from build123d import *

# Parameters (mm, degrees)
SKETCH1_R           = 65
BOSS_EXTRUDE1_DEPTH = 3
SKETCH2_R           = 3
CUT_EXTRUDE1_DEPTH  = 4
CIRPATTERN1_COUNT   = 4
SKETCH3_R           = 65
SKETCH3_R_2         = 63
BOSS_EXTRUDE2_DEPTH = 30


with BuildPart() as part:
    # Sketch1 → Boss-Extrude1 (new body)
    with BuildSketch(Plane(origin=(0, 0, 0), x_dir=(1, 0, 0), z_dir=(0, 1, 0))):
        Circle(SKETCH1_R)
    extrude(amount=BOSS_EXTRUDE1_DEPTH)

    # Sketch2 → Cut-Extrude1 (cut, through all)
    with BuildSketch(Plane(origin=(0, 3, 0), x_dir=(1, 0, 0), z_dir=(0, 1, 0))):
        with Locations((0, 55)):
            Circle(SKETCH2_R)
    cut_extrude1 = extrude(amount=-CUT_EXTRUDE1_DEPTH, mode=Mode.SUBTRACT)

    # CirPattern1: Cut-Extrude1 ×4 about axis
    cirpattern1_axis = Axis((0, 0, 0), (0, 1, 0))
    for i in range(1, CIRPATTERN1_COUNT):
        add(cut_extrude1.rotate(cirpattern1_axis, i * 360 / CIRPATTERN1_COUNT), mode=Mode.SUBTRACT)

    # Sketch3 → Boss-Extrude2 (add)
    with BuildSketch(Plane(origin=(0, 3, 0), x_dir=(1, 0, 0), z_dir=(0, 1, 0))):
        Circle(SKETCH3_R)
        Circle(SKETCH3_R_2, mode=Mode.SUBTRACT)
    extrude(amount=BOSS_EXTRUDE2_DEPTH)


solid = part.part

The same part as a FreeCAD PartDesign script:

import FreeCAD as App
import Part
import Sketcher

V = App.Vector

doc = App.newDocument("Part")
params = doc.addObject("Spreadsheet::Sheet", "Params")
for row, (alias, value) in enumerate([
    ("sketch1_diameter", "130 mm"),
    ("pad1_length", "3 mm"),
    ("sketch2_diameter", "6 mm"),
    ("sketch3_diameter", "130 mm"),
    ("sketch3_diameter2", "126 mm"),
    ("pad2_length", "30 mm"),
], start=1):
    params.set(f"A{row}", alias)
    params.set(f"B{row}", "=" + value)
    params.setAlias(f"B{row}", alias)

body = doc.addObject("PartDesign::Body", "Body")

# Sketch on XZ plane
sketch1 = body.newObject("Sketcher::SketchObject", "Sketch")
sketch1.AttachmentSupport = (doc.getObject("XZ_Plane"), [""])
sketch1.MapMode = "FlatFace"
sketch1.addGeometry(Part.Circle(V(0, 0, 0), V(0, 0, 1), 65), False)
sketch1.addConstraint(Sketcher.Constraint("Coincident", 0, 3, -1, 1))
sketch1.addConstraint(Sketcher.Constraint("Diameter", 0, 130.0))
sketch1.setExpression("Constraints[1]", "Params.sketch1_diameter")
pad1 = body.newObject("PartDesign::Pad", "Pad")
pad1.Profile = sketch1
pad1.setExpression("Length", "Params.pad1_length")
pad1.Reversed = True

# Sketch on XZ plane
sketch2 = body.newObject("Sketcher::SketchObject", "Sketch001")
sketch2.AttachmentSupport = (doc.getObject("XZ_Plane"), [""])
sketch2.MapMode = "FlatFace"
sketch2.AttachmentOffset = App.Placement(V(0, 0, -3), App.Rotation())
sketch2.addGeometry(Part.Circle(V(0, -55, 0), V(0, 0, 1), 3), False)
sketch2.addConstraint(Sketcher.Constraint("PointOnObject", 0, 3, -2))
sketch2.addConstraint(Sketcher.Constraint("Diameter", 0, 6.0))
sketch2.addConstraint(Sketcher.Constraint("DistanceY", 0, 3, -1, 1, 55.0))
sketch2.setExpression("Constraints[1]", "Params.sketch2_diameter")
pocket1 = body.newObject("PartDesign::Pocket", "Pocket")
pocket1.Profile = sketch2
pocket1.Type = "ThroughAll"
pocket1.Reversed = True
doc.recompute()

polarpattern = body.newObject("PartDesign::PolarPattern", "PolarPattern")
polarpattern.Originals = [pocket1]
polarpattern.Axis = (doc.getObject("Y_Axis"), [""])
polarpattern.Angle = 360
polarpattern.Occurrences = 4
body.Tip = polarpattern

# Sketch on XZ plane
sketch3 = body.newObject("Sketcher::SketchObject", "Sketch002")
sketch3.AttachmentSupport = (doc.getObject("XZ_Plane"), [""])
sketch3.MapMode = "FlatFace"
sketch3.AttachmentOffset = App.Placement(V(0, 0, -3), App.Rotation())
sketch3.addGeometry(Part.Circle(V(0, 0, 0), V(0, 0, 1), 65), False)
sketch3.addGeometry(Part.Circle(V(0, 0, 0), V(0, 0, 1), 63), False)
sketch3.addConstraint(Sketcher.Constraint("Coincident", 0, 3, -1, 1))
sketch3.addConstraint(Sketcher.Constraint("Coincident", 1, 3, -1, 1))
sketch3.addConstraint(Sketcher.Constraint("Diameter", 0, 130.0))
sketch3.addConstraint(Sketcher.Constraint("Diameter", 1, 126.0))
sketch3.setExpression("Constraints[2]", "Params.sketch3_diameter")
sketch3.setExpression("Constraints[3]", "Params.sketch3_diameter2")
pad2 = body.newObject("PartDesign::Pad", "Pad001")
pad2.Profile = sketch3
pad2.setExpression("Length", "Params.pad2_length")
pad2.Reversed = True

doc.recompute()
